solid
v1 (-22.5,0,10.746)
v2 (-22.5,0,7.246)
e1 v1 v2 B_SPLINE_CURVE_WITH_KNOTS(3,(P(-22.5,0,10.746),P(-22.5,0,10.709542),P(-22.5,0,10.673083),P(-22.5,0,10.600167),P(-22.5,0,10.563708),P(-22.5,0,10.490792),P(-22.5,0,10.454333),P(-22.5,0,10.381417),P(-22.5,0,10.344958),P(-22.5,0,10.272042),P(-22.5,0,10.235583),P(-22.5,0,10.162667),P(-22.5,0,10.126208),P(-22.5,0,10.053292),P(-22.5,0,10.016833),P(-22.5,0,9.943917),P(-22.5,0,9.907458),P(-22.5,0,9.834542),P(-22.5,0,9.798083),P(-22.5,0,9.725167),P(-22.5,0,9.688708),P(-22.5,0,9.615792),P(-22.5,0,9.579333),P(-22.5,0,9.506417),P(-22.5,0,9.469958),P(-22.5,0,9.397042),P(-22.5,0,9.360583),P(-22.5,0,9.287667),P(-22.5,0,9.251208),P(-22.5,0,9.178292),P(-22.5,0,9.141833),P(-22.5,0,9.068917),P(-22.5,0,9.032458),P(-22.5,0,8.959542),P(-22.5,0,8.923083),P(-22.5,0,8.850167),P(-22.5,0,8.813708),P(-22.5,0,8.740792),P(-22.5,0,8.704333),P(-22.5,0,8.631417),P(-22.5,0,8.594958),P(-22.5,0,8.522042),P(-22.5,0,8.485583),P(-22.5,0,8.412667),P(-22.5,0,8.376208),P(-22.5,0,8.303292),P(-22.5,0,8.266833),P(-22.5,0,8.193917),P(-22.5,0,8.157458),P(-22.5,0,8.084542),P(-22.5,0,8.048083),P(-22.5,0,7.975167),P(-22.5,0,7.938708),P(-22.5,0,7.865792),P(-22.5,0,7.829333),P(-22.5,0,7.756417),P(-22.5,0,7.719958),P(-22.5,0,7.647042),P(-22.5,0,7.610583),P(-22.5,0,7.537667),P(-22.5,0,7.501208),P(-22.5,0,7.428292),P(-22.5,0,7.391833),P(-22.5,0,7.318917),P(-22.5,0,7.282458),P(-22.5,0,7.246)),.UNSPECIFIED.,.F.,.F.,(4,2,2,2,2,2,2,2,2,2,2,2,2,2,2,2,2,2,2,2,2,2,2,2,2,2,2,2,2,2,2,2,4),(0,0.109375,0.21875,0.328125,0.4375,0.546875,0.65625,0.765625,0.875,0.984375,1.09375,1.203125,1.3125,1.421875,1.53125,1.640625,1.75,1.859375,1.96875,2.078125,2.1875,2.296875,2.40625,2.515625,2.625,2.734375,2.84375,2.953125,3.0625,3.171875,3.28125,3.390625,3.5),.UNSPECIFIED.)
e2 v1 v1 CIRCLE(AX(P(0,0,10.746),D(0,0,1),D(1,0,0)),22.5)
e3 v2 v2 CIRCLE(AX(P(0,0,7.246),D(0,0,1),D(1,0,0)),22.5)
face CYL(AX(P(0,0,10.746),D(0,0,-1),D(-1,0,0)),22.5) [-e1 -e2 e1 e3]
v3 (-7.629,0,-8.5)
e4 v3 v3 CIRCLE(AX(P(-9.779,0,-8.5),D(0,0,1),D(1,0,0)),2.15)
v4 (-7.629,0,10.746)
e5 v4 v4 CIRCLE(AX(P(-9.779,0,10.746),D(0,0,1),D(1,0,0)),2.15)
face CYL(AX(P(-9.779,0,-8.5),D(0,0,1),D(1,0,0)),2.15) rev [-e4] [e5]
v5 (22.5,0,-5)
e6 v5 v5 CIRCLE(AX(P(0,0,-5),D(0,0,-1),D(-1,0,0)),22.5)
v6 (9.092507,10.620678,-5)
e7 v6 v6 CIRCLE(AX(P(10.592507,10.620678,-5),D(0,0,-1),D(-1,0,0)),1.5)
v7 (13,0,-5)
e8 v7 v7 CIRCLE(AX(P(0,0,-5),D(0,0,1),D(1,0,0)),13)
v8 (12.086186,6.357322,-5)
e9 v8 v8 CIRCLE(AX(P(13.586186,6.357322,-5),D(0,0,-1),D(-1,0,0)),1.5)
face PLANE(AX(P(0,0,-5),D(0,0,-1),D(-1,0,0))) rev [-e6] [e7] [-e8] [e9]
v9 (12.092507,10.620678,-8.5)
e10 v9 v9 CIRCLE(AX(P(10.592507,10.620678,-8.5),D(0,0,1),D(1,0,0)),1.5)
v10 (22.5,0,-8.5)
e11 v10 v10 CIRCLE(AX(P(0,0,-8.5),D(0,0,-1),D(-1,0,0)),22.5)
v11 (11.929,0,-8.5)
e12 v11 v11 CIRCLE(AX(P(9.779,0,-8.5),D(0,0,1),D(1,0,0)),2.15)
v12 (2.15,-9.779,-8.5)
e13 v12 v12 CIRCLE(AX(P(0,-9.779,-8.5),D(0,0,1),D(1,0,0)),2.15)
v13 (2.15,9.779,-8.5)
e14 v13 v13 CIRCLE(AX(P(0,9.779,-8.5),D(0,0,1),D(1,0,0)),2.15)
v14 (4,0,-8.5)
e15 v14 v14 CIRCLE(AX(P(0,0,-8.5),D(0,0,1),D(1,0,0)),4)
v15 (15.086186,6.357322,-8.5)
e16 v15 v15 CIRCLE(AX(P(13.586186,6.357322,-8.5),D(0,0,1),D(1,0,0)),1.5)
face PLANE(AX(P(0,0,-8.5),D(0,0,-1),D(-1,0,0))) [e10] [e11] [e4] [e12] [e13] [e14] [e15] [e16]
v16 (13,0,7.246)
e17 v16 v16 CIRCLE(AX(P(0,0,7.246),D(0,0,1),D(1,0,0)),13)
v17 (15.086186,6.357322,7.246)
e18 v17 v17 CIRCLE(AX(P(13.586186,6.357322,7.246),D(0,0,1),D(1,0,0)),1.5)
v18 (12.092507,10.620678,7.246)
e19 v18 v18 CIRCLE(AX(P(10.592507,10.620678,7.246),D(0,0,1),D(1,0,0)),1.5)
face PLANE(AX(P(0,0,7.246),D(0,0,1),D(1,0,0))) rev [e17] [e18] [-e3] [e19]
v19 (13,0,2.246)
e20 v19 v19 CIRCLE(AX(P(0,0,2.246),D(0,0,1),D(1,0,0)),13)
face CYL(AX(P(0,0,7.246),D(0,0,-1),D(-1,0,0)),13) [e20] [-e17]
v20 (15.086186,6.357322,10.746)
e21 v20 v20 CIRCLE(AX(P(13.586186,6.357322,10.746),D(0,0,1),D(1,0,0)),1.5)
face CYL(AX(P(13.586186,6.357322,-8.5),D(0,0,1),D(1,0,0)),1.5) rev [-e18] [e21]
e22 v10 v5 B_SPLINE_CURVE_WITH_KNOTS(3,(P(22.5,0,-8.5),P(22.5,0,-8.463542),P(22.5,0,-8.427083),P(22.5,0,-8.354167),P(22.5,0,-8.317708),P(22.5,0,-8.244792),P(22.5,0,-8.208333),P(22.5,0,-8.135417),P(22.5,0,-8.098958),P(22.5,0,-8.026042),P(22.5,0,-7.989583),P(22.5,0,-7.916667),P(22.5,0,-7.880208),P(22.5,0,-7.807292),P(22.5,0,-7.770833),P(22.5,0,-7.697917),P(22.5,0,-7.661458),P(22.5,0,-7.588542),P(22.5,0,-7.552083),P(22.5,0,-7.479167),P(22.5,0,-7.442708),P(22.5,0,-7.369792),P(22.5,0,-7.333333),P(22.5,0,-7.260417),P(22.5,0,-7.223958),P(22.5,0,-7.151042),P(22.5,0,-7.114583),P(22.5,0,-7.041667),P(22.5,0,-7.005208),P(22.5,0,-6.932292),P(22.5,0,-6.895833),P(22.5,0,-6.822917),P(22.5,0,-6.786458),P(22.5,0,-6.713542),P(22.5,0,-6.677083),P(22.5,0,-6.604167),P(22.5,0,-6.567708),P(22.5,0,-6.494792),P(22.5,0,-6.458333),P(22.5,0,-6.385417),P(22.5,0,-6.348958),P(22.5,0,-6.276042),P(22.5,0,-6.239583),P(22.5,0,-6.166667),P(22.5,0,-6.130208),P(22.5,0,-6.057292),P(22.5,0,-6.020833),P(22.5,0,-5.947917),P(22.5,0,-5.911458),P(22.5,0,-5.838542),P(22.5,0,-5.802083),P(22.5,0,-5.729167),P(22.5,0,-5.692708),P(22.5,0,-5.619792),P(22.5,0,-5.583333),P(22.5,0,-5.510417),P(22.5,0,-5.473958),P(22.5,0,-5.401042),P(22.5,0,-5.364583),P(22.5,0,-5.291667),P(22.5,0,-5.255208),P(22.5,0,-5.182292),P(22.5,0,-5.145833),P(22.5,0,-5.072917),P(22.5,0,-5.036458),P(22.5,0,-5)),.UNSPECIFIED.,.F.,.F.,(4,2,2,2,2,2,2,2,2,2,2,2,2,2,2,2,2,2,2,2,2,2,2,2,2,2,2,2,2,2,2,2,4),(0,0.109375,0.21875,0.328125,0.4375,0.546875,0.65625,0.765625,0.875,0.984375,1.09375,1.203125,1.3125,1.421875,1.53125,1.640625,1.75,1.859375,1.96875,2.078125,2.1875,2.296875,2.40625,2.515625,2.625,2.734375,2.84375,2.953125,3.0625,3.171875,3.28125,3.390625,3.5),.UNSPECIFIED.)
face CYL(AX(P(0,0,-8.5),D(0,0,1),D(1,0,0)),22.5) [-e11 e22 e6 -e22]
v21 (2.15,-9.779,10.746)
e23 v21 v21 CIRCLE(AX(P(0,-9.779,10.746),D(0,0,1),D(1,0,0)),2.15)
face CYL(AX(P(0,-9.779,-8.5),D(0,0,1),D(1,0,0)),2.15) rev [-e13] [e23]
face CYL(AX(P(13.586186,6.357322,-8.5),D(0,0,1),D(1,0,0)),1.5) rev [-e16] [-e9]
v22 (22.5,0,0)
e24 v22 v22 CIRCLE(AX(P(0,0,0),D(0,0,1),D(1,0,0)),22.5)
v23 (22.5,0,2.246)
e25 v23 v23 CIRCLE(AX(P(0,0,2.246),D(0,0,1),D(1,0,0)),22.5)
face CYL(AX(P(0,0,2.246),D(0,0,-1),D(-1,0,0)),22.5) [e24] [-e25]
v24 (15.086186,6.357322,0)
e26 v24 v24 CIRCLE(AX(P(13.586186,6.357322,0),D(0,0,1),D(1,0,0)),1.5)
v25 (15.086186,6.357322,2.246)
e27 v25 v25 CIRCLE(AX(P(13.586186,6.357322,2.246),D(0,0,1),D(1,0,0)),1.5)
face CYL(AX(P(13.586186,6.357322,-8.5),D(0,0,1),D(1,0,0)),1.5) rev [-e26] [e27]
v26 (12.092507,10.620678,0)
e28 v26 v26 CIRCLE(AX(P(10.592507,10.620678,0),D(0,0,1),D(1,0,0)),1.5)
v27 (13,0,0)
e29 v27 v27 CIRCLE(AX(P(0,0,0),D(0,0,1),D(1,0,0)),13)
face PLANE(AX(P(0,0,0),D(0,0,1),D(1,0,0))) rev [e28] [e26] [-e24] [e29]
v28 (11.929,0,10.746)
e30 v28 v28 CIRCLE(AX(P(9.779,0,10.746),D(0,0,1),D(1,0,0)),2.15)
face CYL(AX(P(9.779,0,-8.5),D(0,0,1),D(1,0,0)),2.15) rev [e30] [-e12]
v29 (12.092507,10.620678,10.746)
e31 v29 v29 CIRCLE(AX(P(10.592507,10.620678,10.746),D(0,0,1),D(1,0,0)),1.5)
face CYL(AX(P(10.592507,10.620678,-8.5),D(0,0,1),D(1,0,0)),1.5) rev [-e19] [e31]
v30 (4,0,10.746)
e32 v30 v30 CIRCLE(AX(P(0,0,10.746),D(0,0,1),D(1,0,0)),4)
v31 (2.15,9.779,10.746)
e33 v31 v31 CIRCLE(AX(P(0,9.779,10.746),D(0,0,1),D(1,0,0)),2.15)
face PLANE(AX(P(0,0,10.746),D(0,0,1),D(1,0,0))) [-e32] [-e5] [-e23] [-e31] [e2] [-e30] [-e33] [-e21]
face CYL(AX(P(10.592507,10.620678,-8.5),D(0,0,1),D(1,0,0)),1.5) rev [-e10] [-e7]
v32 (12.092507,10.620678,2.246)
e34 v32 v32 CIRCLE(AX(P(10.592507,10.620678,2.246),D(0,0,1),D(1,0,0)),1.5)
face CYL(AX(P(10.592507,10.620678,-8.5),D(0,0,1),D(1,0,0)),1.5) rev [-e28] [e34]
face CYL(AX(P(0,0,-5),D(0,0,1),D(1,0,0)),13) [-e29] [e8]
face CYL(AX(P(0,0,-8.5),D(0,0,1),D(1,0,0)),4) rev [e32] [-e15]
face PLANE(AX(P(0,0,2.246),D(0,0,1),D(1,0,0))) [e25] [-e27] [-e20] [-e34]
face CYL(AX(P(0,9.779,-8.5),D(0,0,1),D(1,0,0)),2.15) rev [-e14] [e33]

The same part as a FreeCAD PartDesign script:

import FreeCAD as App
import Part
import Sketcher
Q = App.Units.Quantity

doc = App.newDocument("Part")
body = doc.addObject("PartDesign::Body", "Body")

sketch1 = body.newObject("Sketcher::SketchObject", "Sketch")
sketch1.AttachmentSupport = (doc.getObject("XY_Plane"), [""])
sketch1.MapMode = "FlatFace"
sketch1.addGeometry(Part.Circle(App.Vector(0, 0, 0), App.Vector(0, 0, 1), 22), False)
sketch1.addConstraint([
    Sketcher.Constraint("Coincident", 0, 3, -1, 1),
    Sketcher.Constraint("Diameter", 0, Q("45 mm")),
])
pad1 = body.newObject("PartDesign::Pad", "Pad")
pad1.Profile = sketch1
pad1.Length = 2.246

sketch2 = body.newObject("Sketcher::SketchObject", "Sketch001")
sketch2.AttachmentSupport = (doc.getObject("XY_Plane"), [""])
sketch2.MapMode = "FlatFace"
sketch2.addGeometry(Part.Circle(App.Vector(0, 0, 0), App.Vector(0, 0, 1), 13), False)
sketch2.addConstraint([
    Sketcher.Constraint("Coincident", 0, 3, -1, 1),
    Sketcher.Constraint("Diameter", 0, Q("26 mm")),
])
pad2 = body.newObject("PartDesign::Pad", "Pad001")
pad2.Profile = sketch2
pad2.Length = 5
pad2.Reversed = True

sketch3 = body.newObject("Sketcher::SketchObject", "Sketch002")
sketch3.AttachmentSupport = (doc.getObject("XY_Plane"), [""])
sketch3.MapMode = "FlatFace"
sketch3.AttachmentOffset = App.Placement(App.Vector(0, 0, -8.5), App.Rotation())
sketch3.addGeometry(Part.Circle(App.Vector(0, 0, 0), App.Vector(0, 0, 1), 22), False)
sketch3.addConstraint([
    Sketcher.Constraint("Coincident", 0, 3, -1, 1),
    Sketcher.Constraint("Diameter", 0, Q("45 mm")),
])
pad3 = body.newObject("PartDesign::Pad", "Pad002")
pad3.Profile = sketch3
pad3.Length = 3.5

sketch4 = body.newObject("Sketcher::SketchObject", "Sketch003")
sketch4.AttachmentSupport = (doc.getObject("XY_Plane"), [""])
sketch4.MapMode = "FlatFace"
sketch4.AttachmentOffset = App.Placement(App.Vector(0, 0, 7.246), App.Rotation())
sketch4.addGeometry(Part.Circle(App.Vector(0, 0, 0), App.Vector(0, 0, 1), 13), False)
sketch4.addConstraint([
    Sketcher.Constraint("Coincident", 0, 3, -1, 1),
    Sketcher.Constraint("Diameter", 0, Q("26 mm")),
])
pad4 = body.newObject("PartDesign::Pad", "Pad003")
pad4.Profile = sketch4
pad4.Length = 5
pad4.Reversed = True

sketch5 = body.newObject("Sketcher::SketchObject", "Sketch004")
sketch5.AttachmentSupport = (doc.getObject("XY_Plane"), [""])
sketch5.MapMode = "FlatFace"
sketch5.AttachmentOffset = App.Placement(App.Vector(0, 0, 7.246), App.Rotation())
sketch5.addGeometry(Part.Circle(App.Vector(0, 0, 0), App.Vector(0, 0, 1), 22), False)
sketch5.addConstraint([
    Sketcher.Constraint("Coincident", 0, 3, -1, 1),
    Sketcher.Constraint("Diameter", 0, Q("45 mm")),
])
pad5 = body.newObject("PartDesign::Pad", "Pad004")
pad5.Profile = sketch5
pad5.Length = 3.5

sketch6 = body.newObject("Sketcher::SketchObject", "Sketch005")
sketch6.AttachmentSupport = (doc.getObject("XY_Plane"), [""])
sketch6.MapMode = "FlatFace"
sketch6.AttachmentOffset = App.Placement(App.Vector(0, 0, 10.746), App.Rotation())
sketch6.addGeometry([
    Part.Circle(App.Vector(0, 0, 0), App.Vector(0, 0, 1), 4),
    Part.Circle(App.Vector(0, 9.8, 0), App.Vector(0, 0, 1), 2.1),
    Part.Circle(App.Vector(9.8, 0, 0), App.Vector(0, 0, 1), 2.1),
    Part.Circle(App.Vector(0, -9.8, 0), App.Vector(0, 0, 1), 2.1),
    Part.Circle(App.Vector(-9.8, 0, 0), App.Vector(0, 0, 1), 2.1),
    Part.Circle(App.Vector(10.6, 10.6, 0), App.Vector(0, 0, 1), 1.5),
    Part.Circle(App.Vector(13.6, 6.4, 0), App.Vector(0, 0, 1), 1.5),
], False)
sketch6.addConstraint([
    Sketcher.Constraint("Coincident", 0, 3, -1, 1),
    Sketcher.Constraint("Equal", 1, 2),
    Sketcher.Constraint("Equal", 2, 3),
    Sketcher.Constraint("Equal", 3, 4),
    Sketcher.Constraint("Equal", 5, 6),
    Sketcher.Constraint("Symmetric", 1, 3, 3, 3, -1, 1),
    Sketcher.Constraint("Symmetric", 2, 3, 4, 3, -1, 1),
    Sketcher.Constraint("PointOnObject", 1, 3, -2),
    Sketcher.Constraint("PointOnObject", 2, 3, -1),
    Sketcher.Constraint("Diameter", 0, Q("8 mm")),
    Sketcher.Constraint("Diameter", 5, Q("3 mm")),
    Sketcher.Constraint("Diameter", 1, Q("4.3 mm")),
    Sketcher.Constraint("DistanceY", -1, 1, 1, 3, Q("9.779 mm")),
    Sketcher.Constraint("DistanceX", -1, 1, 2, 3, Q("9.779 mm")),
    Sketcher.Constraint("DistanceY", -1, 1, 5, 3, Q("10.620678 mm")),
    Sketcher.Constraint("DistanceX", 5, 3, 6, 3, Q("2.99368 mm")),
    Sketcher.Constraint("DistanceX", -1, 1, 5, 3, Q("10.592507 mm")),
    Sketcher.Constraint("DistanceY", -1, 1, 6, 3, Q("6.357322 mm")),
])
pocket1 = body.newObject("PartDesign::Pocket", "Pocket")
pocket1.Profile = sketch6
pocket1.Type = "ThroughAll"

doc.recompute()
